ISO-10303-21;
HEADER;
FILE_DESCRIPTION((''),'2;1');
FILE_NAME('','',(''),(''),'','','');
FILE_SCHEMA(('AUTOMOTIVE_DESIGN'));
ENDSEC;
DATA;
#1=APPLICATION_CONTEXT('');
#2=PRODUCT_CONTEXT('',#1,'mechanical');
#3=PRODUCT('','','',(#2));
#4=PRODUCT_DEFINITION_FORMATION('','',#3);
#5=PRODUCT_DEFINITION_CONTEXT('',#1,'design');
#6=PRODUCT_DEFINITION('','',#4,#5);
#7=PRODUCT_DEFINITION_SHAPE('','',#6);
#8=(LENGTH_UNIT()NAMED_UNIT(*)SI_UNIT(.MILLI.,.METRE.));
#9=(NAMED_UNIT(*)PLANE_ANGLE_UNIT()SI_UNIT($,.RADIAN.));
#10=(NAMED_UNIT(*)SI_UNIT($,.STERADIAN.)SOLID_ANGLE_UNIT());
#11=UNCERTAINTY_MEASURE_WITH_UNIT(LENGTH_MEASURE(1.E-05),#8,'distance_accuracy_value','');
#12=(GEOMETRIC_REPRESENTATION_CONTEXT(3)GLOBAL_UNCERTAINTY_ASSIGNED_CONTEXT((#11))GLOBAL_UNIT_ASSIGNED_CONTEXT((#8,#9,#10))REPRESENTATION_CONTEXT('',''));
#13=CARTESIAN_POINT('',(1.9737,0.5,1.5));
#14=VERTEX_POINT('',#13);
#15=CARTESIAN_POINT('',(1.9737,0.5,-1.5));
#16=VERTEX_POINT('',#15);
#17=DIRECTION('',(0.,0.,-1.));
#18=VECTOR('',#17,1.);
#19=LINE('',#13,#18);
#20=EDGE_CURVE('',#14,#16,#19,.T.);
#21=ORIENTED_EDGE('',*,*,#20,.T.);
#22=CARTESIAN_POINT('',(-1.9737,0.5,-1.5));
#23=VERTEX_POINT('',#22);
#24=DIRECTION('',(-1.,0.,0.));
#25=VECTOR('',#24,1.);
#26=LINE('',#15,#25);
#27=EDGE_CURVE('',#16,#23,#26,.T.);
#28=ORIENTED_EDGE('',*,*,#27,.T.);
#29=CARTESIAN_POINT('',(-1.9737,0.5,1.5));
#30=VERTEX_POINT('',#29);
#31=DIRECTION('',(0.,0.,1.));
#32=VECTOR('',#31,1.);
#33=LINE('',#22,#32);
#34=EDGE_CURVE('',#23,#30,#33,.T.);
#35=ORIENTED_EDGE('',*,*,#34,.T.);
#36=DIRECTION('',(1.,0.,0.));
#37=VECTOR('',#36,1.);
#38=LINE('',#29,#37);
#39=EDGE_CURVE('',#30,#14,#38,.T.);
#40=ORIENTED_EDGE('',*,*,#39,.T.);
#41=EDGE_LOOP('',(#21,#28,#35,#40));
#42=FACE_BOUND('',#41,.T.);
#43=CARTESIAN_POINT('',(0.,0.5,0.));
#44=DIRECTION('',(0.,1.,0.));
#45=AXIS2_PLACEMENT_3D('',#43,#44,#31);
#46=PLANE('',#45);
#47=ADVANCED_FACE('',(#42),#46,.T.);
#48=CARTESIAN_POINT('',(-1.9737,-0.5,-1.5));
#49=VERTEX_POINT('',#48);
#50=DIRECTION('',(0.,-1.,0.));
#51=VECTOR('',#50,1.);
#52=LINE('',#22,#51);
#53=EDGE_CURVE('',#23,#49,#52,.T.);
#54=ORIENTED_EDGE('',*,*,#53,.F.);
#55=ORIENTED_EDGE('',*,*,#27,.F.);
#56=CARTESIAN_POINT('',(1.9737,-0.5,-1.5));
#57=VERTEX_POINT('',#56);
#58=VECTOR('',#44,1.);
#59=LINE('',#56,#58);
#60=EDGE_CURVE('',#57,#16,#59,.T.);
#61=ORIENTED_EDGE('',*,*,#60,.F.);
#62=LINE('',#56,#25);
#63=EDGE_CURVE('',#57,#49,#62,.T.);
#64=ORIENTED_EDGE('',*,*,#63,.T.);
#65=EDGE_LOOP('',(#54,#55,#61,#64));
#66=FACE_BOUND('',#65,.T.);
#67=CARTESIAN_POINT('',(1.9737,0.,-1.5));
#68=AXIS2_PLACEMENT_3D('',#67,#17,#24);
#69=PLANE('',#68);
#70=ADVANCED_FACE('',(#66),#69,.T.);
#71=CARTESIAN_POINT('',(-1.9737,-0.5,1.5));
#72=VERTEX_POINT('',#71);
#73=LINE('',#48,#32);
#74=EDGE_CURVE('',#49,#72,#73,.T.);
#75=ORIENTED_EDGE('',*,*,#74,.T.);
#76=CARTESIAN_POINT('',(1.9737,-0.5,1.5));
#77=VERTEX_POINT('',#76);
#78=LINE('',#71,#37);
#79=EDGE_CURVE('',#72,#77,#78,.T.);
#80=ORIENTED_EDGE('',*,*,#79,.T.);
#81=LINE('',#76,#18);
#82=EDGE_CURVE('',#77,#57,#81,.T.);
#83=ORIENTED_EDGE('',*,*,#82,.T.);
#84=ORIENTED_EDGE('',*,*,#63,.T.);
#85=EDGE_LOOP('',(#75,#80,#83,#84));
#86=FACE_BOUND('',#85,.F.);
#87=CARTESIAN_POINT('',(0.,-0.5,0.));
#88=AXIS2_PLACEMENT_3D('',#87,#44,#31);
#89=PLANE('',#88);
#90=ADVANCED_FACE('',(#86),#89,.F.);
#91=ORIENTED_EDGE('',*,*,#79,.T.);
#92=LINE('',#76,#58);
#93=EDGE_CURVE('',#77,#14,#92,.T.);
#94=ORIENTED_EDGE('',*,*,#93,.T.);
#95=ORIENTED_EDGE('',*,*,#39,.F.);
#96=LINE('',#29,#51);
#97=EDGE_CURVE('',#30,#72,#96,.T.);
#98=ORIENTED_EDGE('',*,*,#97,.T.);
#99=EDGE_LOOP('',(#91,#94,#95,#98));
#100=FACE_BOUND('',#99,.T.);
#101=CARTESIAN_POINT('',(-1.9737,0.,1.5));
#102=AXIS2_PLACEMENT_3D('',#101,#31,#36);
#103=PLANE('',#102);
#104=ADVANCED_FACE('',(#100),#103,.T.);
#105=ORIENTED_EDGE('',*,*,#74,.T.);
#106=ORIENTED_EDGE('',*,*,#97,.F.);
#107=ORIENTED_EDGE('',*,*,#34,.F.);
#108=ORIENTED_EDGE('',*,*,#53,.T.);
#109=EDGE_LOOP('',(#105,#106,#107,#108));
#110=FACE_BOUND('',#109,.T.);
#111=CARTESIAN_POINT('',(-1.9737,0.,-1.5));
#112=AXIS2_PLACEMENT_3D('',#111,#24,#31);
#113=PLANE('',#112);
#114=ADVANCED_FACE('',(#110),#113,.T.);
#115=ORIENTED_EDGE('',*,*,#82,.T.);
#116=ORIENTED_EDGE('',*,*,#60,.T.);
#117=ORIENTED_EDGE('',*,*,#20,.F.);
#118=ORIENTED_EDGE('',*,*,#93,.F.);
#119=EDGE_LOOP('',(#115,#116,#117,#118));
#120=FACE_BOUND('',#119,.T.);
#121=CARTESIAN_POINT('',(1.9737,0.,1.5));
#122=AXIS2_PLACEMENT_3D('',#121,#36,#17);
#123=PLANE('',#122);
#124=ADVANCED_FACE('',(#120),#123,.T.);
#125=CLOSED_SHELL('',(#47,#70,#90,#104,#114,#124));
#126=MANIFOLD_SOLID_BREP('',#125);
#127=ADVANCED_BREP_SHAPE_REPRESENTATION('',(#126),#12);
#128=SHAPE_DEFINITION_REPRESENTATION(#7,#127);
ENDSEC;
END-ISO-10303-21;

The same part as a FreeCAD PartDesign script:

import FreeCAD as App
import Part
import Sketcher
from FreeCAD import Vector

doc = App.newDocument("Part")
params = doc.addObject("Spreadsheet::Sheet", "Params")
for row, (alias, value) in enumerate([
    ("sketch1_height", "3 mm"),
    ("pad1_length", "1 mm"),
], start=1):
    params.set(f"A{row}", alias)
    params.set(f"B{row}", "=" + value)
    params.setAlias(f"B{row}", alias)

body = doc.addObject("PartDesign::Body", "Body")

sketch1 = body.newObject("Sketcher::SketchObject", "Sketch")
sketch1.AttachmentSupport = (doc.getObject("XZ_Plane"), [""])
sketch1.MapMode = "FlatFace"
sketch1.addGeometry([
    Part.LineSegment(Vector(2, 1.5, 0), Vector(-2, 1.5, 0)),
    Part.LineSegment(Vector(-2, 1.5, 0), Vector(-2, -1.5, 0)),
    Part.LineSegment(Vector(-2, -1.5, 0), Vector(2, -1.5, 0)),
    Part.LineSegment(Vector(2, -1.5, 0), Vector(2, 1.5, 0)),
], False)
sketch1.addConstraint([
    Sketcher.Constraint("Coincident", 0, 2, 1, 1),
    Sketcher.Constraint("Coincident", 1, 2, 2, 1),
    Sketcher.Constraint("Coincident", 2, 2, 3, 1),
    Sketcher.Constraint("Coincident", 3, 2, 0, 1),
    Sketcher.Constraint("Horizontal", 0),
    Sketcher.Constraint("Vertical", 1),
    Sketcher.Constraint("Horizontal", 2),
    Sketcher.Constraint("Vertical", 3),
    Sketcher.Constraint("Symmetric", 0, 2, 2, 2, -1, 1),
    Sketcher.Constraint("DistanceY", 1, 2, 1, 1, 3.0),
    Sketcher.Constraint("DistanceX", 0, 2, 0, 1, 3.9474),
])
sketch1.setExpression("Constraints[9]", "Params.sketch1_height")
pad1 = body.newObject("PartDesign::Pad", "Pad")
pad1.Profile = sketch1
pad1.setExpression("Length", "Params.pad1_length")
pad1.Midplane = True

doc.recompute()
